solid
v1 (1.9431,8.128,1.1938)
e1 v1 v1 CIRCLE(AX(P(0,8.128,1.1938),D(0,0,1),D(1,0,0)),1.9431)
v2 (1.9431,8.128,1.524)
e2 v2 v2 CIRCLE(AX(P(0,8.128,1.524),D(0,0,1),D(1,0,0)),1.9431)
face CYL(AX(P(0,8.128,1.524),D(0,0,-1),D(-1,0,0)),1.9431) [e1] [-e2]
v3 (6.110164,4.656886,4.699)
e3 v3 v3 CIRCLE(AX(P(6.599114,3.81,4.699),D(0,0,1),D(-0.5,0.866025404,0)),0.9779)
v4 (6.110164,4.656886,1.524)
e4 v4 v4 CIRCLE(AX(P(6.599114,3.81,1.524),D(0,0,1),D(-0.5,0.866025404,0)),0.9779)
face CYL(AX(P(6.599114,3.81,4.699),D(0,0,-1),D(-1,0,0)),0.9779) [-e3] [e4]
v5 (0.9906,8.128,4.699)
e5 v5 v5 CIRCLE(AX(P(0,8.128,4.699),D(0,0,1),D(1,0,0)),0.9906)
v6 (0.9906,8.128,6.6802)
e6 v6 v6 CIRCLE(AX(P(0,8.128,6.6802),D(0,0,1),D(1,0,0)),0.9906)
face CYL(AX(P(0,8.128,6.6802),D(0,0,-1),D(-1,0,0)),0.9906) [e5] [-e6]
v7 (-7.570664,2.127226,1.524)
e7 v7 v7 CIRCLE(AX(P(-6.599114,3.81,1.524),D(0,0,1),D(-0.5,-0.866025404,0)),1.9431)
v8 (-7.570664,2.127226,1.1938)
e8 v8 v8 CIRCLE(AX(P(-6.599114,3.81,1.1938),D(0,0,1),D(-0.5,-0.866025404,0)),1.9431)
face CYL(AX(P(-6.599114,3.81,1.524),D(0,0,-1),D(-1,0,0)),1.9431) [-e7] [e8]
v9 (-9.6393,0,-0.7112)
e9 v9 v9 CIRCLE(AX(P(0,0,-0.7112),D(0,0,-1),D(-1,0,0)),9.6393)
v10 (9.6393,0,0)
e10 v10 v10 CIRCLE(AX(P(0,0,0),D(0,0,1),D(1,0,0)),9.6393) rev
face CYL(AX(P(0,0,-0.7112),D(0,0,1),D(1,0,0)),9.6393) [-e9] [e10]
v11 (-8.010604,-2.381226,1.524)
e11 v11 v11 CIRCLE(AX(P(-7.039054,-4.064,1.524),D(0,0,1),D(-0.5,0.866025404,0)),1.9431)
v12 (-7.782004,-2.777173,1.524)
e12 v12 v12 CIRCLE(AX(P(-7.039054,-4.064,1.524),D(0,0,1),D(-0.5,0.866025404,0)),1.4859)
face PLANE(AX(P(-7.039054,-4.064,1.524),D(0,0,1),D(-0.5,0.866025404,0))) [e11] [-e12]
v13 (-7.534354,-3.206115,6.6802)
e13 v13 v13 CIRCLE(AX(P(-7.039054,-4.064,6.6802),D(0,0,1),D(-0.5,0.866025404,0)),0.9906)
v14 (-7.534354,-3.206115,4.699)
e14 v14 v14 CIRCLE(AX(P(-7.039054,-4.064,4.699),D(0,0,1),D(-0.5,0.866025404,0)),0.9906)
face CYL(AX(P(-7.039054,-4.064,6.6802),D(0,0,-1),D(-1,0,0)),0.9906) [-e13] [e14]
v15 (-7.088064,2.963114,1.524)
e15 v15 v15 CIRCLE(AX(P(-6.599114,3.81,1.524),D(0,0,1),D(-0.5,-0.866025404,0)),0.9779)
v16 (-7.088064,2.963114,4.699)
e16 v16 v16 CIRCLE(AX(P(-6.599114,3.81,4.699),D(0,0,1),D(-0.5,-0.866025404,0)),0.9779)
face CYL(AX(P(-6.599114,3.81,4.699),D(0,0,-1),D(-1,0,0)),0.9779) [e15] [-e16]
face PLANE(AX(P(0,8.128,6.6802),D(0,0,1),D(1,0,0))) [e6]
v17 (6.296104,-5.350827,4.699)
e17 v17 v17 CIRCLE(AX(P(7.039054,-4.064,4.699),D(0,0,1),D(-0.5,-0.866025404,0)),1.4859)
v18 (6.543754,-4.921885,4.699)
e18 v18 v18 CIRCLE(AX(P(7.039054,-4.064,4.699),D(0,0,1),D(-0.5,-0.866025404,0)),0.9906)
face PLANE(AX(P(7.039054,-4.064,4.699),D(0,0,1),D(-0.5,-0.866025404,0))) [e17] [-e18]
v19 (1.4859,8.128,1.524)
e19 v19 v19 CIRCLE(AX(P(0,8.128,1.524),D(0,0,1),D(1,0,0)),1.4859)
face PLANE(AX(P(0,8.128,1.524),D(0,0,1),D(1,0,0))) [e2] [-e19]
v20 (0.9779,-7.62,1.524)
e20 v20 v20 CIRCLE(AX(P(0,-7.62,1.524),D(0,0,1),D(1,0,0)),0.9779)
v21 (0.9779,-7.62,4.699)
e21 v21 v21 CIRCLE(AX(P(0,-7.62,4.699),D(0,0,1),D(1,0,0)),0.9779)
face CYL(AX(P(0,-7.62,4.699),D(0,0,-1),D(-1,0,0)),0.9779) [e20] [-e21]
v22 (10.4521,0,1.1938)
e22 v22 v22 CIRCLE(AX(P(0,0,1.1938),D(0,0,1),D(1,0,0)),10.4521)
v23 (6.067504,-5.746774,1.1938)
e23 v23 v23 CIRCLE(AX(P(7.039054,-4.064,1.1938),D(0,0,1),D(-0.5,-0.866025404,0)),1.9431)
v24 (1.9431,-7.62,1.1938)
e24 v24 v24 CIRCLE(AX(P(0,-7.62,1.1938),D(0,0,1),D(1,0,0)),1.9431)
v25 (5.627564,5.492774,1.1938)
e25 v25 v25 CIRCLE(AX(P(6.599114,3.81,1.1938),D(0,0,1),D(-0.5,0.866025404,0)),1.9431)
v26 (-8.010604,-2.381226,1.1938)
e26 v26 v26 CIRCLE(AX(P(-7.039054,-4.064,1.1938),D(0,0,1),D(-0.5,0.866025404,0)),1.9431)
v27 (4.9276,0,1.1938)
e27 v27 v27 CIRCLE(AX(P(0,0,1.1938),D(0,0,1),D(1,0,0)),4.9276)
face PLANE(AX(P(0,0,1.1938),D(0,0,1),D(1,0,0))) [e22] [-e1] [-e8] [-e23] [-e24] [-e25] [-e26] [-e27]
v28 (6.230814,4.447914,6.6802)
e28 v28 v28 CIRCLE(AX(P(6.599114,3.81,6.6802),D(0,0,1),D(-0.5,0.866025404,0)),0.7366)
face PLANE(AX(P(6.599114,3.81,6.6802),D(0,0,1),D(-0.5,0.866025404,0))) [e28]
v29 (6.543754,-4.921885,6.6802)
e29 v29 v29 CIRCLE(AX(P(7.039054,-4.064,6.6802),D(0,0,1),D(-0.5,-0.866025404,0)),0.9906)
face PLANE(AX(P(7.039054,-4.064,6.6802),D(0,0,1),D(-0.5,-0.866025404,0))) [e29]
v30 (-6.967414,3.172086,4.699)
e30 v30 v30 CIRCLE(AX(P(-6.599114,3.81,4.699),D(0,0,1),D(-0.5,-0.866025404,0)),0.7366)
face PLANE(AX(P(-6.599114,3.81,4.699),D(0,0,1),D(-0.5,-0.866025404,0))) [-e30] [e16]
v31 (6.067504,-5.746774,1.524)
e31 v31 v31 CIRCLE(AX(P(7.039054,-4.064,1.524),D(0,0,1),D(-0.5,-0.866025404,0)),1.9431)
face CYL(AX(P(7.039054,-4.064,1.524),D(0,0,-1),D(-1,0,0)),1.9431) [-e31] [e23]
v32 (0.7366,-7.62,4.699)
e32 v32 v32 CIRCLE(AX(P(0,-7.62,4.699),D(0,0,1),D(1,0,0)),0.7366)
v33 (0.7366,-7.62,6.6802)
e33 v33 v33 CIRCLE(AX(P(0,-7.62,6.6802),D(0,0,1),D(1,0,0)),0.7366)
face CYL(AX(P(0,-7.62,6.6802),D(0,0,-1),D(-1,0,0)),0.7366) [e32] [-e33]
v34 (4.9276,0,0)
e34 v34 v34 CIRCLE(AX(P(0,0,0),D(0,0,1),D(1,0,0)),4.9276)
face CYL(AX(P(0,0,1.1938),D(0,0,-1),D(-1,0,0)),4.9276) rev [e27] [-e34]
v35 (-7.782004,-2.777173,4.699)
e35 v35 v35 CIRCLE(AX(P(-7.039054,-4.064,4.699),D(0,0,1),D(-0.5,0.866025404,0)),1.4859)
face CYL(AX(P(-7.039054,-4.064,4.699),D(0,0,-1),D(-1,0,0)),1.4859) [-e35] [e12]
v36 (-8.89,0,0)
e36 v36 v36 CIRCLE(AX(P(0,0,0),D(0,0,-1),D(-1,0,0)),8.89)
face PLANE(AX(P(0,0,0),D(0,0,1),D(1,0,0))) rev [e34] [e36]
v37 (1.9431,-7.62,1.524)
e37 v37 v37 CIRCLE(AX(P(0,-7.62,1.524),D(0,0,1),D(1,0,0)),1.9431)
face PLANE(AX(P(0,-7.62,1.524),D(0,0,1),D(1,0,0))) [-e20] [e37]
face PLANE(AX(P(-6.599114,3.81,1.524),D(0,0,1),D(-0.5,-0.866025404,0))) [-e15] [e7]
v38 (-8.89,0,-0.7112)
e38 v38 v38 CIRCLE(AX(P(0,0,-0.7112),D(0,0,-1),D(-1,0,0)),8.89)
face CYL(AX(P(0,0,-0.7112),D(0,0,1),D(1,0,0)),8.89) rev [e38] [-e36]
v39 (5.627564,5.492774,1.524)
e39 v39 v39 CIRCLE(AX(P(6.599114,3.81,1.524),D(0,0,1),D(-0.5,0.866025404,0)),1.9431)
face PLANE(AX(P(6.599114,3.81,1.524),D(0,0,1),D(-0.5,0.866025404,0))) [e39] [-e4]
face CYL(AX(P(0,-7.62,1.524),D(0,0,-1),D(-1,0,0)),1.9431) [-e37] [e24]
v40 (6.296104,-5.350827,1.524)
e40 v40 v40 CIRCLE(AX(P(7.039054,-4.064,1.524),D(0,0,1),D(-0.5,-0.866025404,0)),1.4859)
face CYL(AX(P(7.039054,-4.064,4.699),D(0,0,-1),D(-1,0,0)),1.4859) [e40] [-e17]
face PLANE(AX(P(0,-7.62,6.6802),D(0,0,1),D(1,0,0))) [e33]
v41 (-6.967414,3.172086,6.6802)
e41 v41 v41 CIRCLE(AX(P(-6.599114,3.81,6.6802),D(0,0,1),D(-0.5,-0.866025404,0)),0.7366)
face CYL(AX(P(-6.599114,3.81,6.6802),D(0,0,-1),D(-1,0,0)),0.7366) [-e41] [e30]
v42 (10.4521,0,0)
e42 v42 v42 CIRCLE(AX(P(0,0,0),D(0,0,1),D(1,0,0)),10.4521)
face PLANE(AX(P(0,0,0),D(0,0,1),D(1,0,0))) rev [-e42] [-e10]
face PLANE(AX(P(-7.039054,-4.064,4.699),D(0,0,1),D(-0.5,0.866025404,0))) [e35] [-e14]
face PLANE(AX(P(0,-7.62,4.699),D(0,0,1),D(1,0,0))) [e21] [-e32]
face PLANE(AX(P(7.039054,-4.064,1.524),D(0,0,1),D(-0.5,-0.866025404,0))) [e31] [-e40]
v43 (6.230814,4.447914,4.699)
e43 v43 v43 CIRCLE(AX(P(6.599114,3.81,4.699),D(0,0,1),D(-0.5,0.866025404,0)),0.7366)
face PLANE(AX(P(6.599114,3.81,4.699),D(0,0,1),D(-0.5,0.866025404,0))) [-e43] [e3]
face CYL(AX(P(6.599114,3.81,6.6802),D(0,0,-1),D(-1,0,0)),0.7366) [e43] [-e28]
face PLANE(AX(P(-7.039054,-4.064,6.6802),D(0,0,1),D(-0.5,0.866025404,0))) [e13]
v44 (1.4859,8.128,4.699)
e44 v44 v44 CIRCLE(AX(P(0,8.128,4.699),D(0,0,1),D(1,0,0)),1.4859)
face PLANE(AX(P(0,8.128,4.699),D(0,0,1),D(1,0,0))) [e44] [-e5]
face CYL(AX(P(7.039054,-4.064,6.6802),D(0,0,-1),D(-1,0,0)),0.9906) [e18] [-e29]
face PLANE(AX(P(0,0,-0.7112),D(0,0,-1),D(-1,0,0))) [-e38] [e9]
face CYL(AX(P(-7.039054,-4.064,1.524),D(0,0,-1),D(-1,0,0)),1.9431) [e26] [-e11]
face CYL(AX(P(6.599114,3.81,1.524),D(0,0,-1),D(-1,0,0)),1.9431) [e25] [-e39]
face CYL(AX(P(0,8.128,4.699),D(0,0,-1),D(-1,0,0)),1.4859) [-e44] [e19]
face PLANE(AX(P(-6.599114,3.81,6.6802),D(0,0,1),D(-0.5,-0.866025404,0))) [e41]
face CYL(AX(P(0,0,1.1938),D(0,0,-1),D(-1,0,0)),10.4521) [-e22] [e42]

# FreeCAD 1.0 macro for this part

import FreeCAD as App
import Part
import Sketcher
Q = App.Units.Quantity

doc = App.newDocument("Part")
body = doc.addObject("PartDesign::Body", "Body")

# Sketch on XY plane
sketch1 = body.newObject("Sketcher::SketchObject", "Sketch")
sketch1.AttachmentSupport = (doc.getObject("XY_Plane"), [""])
sketch1.MapMode = "FlatFace"
sketch1.addGeometry([
    Part.Circle(App.Vector(0, 0, 0), App.Vector(0, 0, 1), 10.5),
    Part.Circle(App.Vector(0, 0, 0), App.Vector(0, 0, 1), 4.9),
], False)
sketch1.addConstraint([
    Sketcher.Constraint("Coincident", 0, 3, -1, 1),
    Sketcher.Constraint("Coincident", 1, 3, -1, 1),
    Sketcher.Constraint("Diameter", 0, Q("0.823 in")),
    Sketcher.Constraint("Diameter", 1, Q("0.388 in")),
])
pad1 = body.newObject("PartDesign::Pad", "Pad")
pad1.Profile = sketch1
pad1.Length = Q("0.047 in")

# Sketch on XY plane
sketch2 = body.newObject("Sketcher::SketchObject", "Sketch001")
sketch2.AttachmentSupport = (doc.getObject("XY_Plane"), [""])
sketch2.MapMode = "FlatFace"
sketch2.addGeometry([
    Part.Circle(App.Vector(0, 0, 0), App.Vector(0, 0, 1), 10),
    Part.Circle(App.Vector(0, 0, 0), App.Vector(0, 0, 1), 9),
], False)
sketch2.addConstraint([
    Sketcher.Constraint("Coincident", 0, 3, -1, 1),
    Sketcher.Constraint("Coincident", 1, 3, -1, 1),
    Sketcher.Constraint("Diameter", 1, Q("0.7 in")),
    Sketcher.Constraint("Diameter", 0, Q("0.759 in")),
])
pad2 = body.newObject("PartDesign::Pad", "Pad001")
pad2.Profile = sketch2
pad2.Length = Q("0.028 in")
pad2.Reversed = True

# Sketch on XY plane
sketch3 = body.newObject("Sketcher::SketchObject", "Sketch002")
sketch3.AttachmentSupport = (doc.getObject("XY_Plane"), [""])
sketch3.MapMode = "FlatFace"
sketch3.AttachmentOffset = App.Placement(App.Vector(0, 0, 0.047 * 25.4), App.Rotation())
sketch3.addGeometry([
    Part.Circle(App.Vector(0, 8.1, 0), App.Vector(0, 0, 1), 1.9),
    Part.Circle(App.Vector(0, -7.6, 0), App.Vector(0, 0, 1), 1.9),
], False)
sketch3.addConstraint([
    Sketcher.Constraint("Equal", 0, 1),
    Sketcher.Constraint("PointOnObject", 0, 3, -2),
    Sketcher.Constraint("PointOnObject", 1, 3, -2),
    Sketcher.Constraint("Diameter", 0, Q("0.153 in")),
    Sketcher.Constraint("DistanceY", 1, 3, -1, 1, Q("0.3 in")),
    Sketcher.Constraint("DistanceY", -1, 1, 0, 3, Q("0.32 in")),
])
pad3 = body.newObject("PartDesign::Pad", "Pad002")
pad3.Profile = sketch3
pad3.Length = Q("0.013 in")

# Sketch on XY plane
sketch4 = body.newObject("Sketcher::SketchObject", "Sketch003")
sketch4.AttachmentSupport = (doc.getObject("XY_Plane"), [""])
sketch4.MapMode = "FlatFace"
sketch4.AttachmentOffset = App.Placement(App.Vector(0, 0, 0.06 * 25.4), App.Rotation())
sketch4.addGeometry([
    Part.Circle(App.Vector(0, 8.1, 0), App.Vector(0, 0, 1), 1.5),
    Part.Circle(App.Vector(0, -7.6, 0), App.Vector(0, 0, 1), 1),
], False)
sketch4.addConstraint([
    Sketcher.Constraint("PointOnObject", 0, 3, -2),
    Sketcher.Constraint("PointOnObject", 1, 3, -2),
    Sketcher.Constraint("Diameter", 0, Q("0.117 in")),
    Sketcher.Constraint("Diameter", 1, Q("0.077 in")),
    Sketcher.Constraint("DistanceY", 1, 3, -1, 1, Q("0.3 in")),
    Sketcher.Constraint("DistanceY", -1, 1, 0, 3, Q("0.32 in")),
])
pad4 = body.newObject("PartDesign::Pad", "Pad003")
pad4.Profile = sketch4
pad4.Length = Q("0.125 in")

# Sketch on XY plane
sketch5 = body.newObject("Sketcher::SketchObject", "Sketch004")
sketch5.AttachmentSupport = (doc.getObject("XY_Plane"), [""])
sketch5.MapMode = "FlatFace"
sketch5.AttachmentOffset = App.Placement(App.Vector(0, 0, 0.185 * 25.4), App.Rotation())
sketch5.addGeometry([
    Part.Circle(App.Vector(0, 8.1, 0), App.Vector(0, 0, 1), 1),
    Part.Circle(App.Vector(0, -7.6, 0), App.Vector(0, 0, 1), 0.7),
], False)
sketch5.addConstraint([
    Sketcher.Constraint("PointOnObject", 0, 3, -2),
    Sketcher.Constraint("PointOnObject", 1, 3, -2),
    Sketcher.Constraint("Diameter", 0, Q("0.078 in")),
    Sketcher.Constraint("Diameter", 1, Q("0.058 in")),
    Sketcher.Constraint("DistanceY", 1, 3, -1, 1, Q("0.3 in")),
    Sketcher.Constraint("DistanceY", -1, 1, 0, 3, Q("0.32 in")),
])
pad5 = body.newObject("PartDesign::Pad", "Pad004")
pad5.Profile = sketch5
pad5.Length = Q("0.078 in")
doc.recompute()

polarpattern = body.newObject("PartDesign::PolarPattern", "PolarPattern")
polarpattern.Originals = [pad3, pad4, pad5]
polarpattern.Axis = (doc.getObject("Z_Axis"), [""])
polarpattern.Angle = 360
polarpattern.Occurrences = 3
body.Tip = polarpattern

doc.recompute()
